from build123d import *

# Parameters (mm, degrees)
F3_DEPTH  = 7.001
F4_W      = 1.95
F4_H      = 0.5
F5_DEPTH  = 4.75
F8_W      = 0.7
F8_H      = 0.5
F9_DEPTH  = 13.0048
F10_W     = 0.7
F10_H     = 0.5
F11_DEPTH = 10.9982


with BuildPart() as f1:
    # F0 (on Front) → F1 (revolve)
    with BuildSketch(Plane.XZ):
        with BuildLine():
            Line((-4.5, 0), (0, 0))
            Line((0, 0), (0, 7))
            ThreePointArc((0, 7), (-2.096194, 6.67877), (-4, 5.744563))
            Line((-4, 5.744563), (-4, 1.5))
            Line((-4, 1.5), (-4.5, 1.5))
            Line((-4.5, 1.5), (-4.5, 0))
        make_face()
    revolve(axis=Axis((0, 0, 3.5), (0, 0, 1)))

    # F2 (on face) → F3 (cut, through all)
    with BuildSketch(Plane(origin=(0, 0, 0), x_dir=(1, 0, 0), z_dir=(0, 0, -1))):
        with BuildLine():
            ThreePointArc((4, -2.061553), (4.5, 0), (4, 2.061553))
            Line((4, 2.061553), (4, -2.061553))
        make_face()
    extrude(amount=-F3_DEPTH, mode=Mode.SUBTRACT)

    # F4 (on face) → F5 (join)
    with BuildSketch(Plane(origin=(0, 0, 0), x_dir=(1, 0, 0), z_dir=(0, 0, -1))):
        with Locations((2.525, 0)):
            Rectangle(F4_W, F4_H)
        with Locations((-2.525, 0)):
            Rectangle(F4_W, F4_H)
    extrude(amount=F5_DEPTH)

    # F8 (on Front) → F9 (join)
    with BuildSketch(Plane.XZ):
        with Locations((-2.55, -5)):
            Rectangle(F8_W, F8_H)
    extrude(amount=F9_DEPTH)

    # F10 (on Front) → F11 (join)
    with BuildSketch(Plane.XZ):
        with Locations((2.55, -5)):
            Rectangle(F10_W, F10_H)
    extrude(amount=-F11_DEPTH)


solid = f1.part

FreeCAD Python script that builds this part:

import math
import FreeCAD as App
import Part
import Sketcher

V = App.Vector
Q = App.Units.Quantity

doc = App.newDocument("Part")
body = doc.addObject("PartDesign::Body", "Body")

# Sketch on XZ plane
sketch1 = body.newObject("Sketcher::SketchObject", "Sketch")
sketch1.AttachmentSupport = (doc.getObject("XZ_Plane"), [""])
sketch1.MapMode = "FlatFace"
sketch1.addGeometry(Part.LineSegment(V(-4.5, 0, 0), V(0, 0, 0)), False)
sketch1.addGeometry(Part.LineSegment(V(0, 0, 0), V(0, 7, 0)), False)
sketch1.addGeometry(Part.ArcOfCircle(Part.Circle(V(0, 0, 0), V(0, 0, 1), 7), math.radians(90), math.radians(125)), False)
sketch1.addGeometry(Part.LineSegment(V(-4, 5.7, 0), V(-4, 1.5, 0)), False)
sketch1.addGeometry(Part.LineSegment(V(-4, 1.5, 0), V(-4.5, 1.5, 0)), False)
sketch1.addGeometry(Part.LineSegment(V(-4.5, 1.5, 0), V(-4.5, 0, 0)), False)
sketch1.addConstraint(Sketcher.Constraint("Coincident", 0, 2, 1, 1))
sketch1.addConstraint(Sketcher.Constraint("Coincident", 1, 2, 2, 1))
sketch1.addConstraint(Sketcher.Constraint("Coincident", 2, 2, 3, 1))
sketch1.addConstraint(Sketcher.Constraint("Coincident", 3, 2, 4, 1))
sketch1.addConstraint(Sketcher.Constraint("Coincident", 4, 2, 5, 1))
sketch1.addConstraint(Sketcher.Constraint("Coincident", 5, 2, 0, 1))
sketch1.addConstraint(Sketcher.Constraint("Horizontal", 0))
sketch1.addConstraint(Sketcher.Constraint("Vertical", 1))
sketch1.addConstraint(Sketcher.Constraint("Vertical", 3))
sketch1.addConstraint(Sketcher.Constraint("Horizontal", 4))
sketch1.addConstraint(Sketcher.Constraint("Vertical", 5))
sketch1.addConstraint(Sketcher.Constraint("Coincident", 2, 3, -1, 1))
sketch1.addConstraint(Sketcher.Constraint("Coincident", 0, 2, -1, 1))
sketch1.addConstraint(Sketcher.Constraint("DistanceY", 1, 1, 1, 2, Q("7 mm")))
sketch1.addConstraint(Sketcher.Constraint("DistanceX", 0, 1, 0, 2, Q("4.5 mm")))
sketch1.addConstraint(Sketcher.Constraint("DistanceX", 4, 2, 4, 1, Q("0.5 mm")))
sketch1.addConstraint(Sketcher.Constraint("DistanceY", 5, 2, 5, 1, Q("1.5 mm")))
revolution = body.newObject("PartDesign::Revolution", "Revolution")
revolution.Profile = sketch1
revolution.ReferenceAxis = (sketch1, ["V_Axis"])
revolution.Angle = 360

# Sketch on XY plane
sketch2 = body.newObject("Sketcher::SketchObject", "Sketch001")
sketch2.AttachmentSupport = (doc.getObject("XY_Plane"), [""])
sketch2.MapMode = "FlatFace"
sketch2.addGeometry(Part.ArcOfCircle(Part.Circle(V(0, 0, 0), V(0, 0, 1), 4.5), math.radians(-27), math.radians(27)), False)
sketch2.addGeometry(Part.LineSegment(V(4, -2.1, 0), V(4, 2.1, 0)), False)
sketch2.addConstraint(Sketcher.Constraint("Coincident", 0, 1, 1, 1))
sketch2.addConstraint(Sketcher.Constraint("Coincident", 1, 2, 0, 2))
sketch2.addConstraint(Sketcher.Constraint("Vertical", 1))
sketch2.addConstraint(Sketcher.Constraint("Coincident", 0, 3, -1, 1))
sketch2.addConstraint(Sketcher.Constraint("Radius", 0, Q("4.500001 mm")))
sketch2.addConstraint(Sketcher.Constraint("DistanceX", -1, 1, 0, 1, Q("4 mm")))
pocket1 = body.newObject("PartDesign::Pocket", "Pocket")
pocket1.Profile = sketch2
pocket1.Type = "ThroughAll"
pocket1.Reversed = True

# Sketch on XY plane
sketch3 = body.newObject("Sketcher::SketchObject", "Sketch002")
sketch3.AttachmentSupport = (doc.getObject("XY_Plane"), [""])
sketch3.MapMode = "FlatFace"
sketch3.addGeometry(Part.LineSegment(V(1.6, -0.2, 0), V(1.6, 0.2, 0)), False)
sketch3.addGeometry(Part.LineSegment(V(1.6, 0.2, 0), V(3.5, 0.2, 0)), False)
sketch3.addGeometry(Part.LineSegment(V(3.5, 0.2, 0), V(3.5, -0.2, 0)), False)
sketch3.addGeometry(Part.LineSegment(V(3.5, -0.2, 0), V(1.6, -0.2, 0)), False)
sketch3.addGeometry(Part.LineSegment(V(-3.5, -0.2, 0), V(-3.5, 0.2, 0)), False)
sketch3.addGeometry(Part.LineSegment(V(-3.5, 0.2, 0), V(-1.6, 0.2, 0)), False)
sketch3.addGeometry(Part.LineSegment(V(-1.6, 0.2, 0), V(-1.6, -0.2, 0)), False)
sketch3.addGeometry(Part.LineSegment(V(-1.6, -0.2, 0), V(-3.5, -0.2, 0)), False)
sketch3.addConstraint(Sketcher.Constraint("Coincident", 0, 2, 1, 1))
sketch3.addConstraint(Sketcher.Constraint("Coincident", 1, 2, 2, 1))
sketch3.addConstraint(Sketcher.Constraint("Coincident", 2, 2, 3, 1))
sketch3.addConstraint(Sketcher.Constraint("Coincident", 3, 2, 0, 1))
sketch3.addConstraint(Sketcher.Constraint("Coincident", 4, 2, 5, 1))
sketch3.addConstraint(Sketcher.Constraint("Coincident", 5, 2, 6, 1))
sketch3.addConstraint(Sketcher.Constraint("Coincident", 6, 2, 7, 1))
sketch3.addConstraint(Sketcher.Constraint("Coincident", 7, 2, 4, 1))
sketch3.addConstraint(Sketcher.Constraint("Vertical", 0))
sketch3.addConstraint(Sketcher.Constraint("Horizontal", 1))
sketch3.addConstraint(Sketcher.Constraint("Vertical", 2))
sketch3.addConstraint(Sketcher.Constraint("Horizontal", 3))
sketch3.addConstraint(Sketcher.Constraint("Vertical", 4))
sketch3.addConstraint(Sketcher.Constraint("Horizontal", 5))
sketch3.addConstraint(Sketcher.Constraint("Vertical", 6))
sketch3.addConstraint(Sketcher.Constraint("Horizontal", 7))
sketch3.addConstraint(Sketcher.Constraint("Symmetric", 2, 2, 4, 2, -1, 1))
sketch3.addConstraint(Sketcher.Constraint("Symmetric", 0, 2, 6, 2, -1, 1))
sketch3.addConstraint(Sketcher.Constraint("Horizontal", 1, 2, 4, 2))
sketch3.addConstraint(Sketcher.Constraint("DistanceY", 0, 1, 0, 2, Q("0.5 mm")))
sketch3.addConstraint(Sketcher.Constraint("DistanceX", 4, 2, 1, 2, Q("7 mm")))
sketch3.addConstraint(Sketcher.Constraint("DistanceX", 1, 1, 1, 2, Q("1.95 mm")))
pad1 = body.newObject("PartDesign::Pad", "Pad")
pad1.Profile = sketch3
pad1.Length = 4.75
pad1.Reversed = True

# Sketch on XZ plane
sketch4 = body.newObject("Sketcher::SketchObject", "Sketch003")
sketch4.AttachmentSupport = (doc.getObject("XZ_Plane"), [""])
sketch4.MapMode = "FlatFace"
sketch4.addGeometry(Part.LineSegment(V(-2.9, -4.8, 0), V(-2.9, -5.2, 0)), False)
sketch4.addGeometry(Part.LineSegment(V(-2.9, -5.2, 0), V(-2.2, -5.2, 0)), False)
sketch4.addGeometry(Part.LineSegment(V(-2.2, -5.2, 0), V(-2.2, -4.8, 0)), False)
sketch4.addGeometry(Part.LineSegment(V(-2.2, -4.8, 0), V(-2.9, -4.8, 0)), False)
sketch4.addConstraint(Sketcher.Constraint("Coincident", 0, 2, 1, 1))
sketch4.addConstraint(Sketcher.Constraint("Coincident", 1, 2, 2, 1))
sketch4.addConstraint(Sketcher.Constraint("Coincident", 2, 2, 3, 1))
sketch4.addConstraint(Sketcher.Constraint("Coincident", 3, 2, 0, 1))
sketch4.addConstraint(Sketcher.Constraint("Vertical", 0))
sketch4.addConstraint(Sketcher.Constraint("Horizontal", 1))
sketch4.addConstraint(Sketcher.Constraint("Vertical", 2))
sketch4.addConstraint(Sketcher.Constraint("Horizontal", 3))
sketch4.addConstraint(Sketcher.Constraint("DistanceX", 1, 1, 1, 2, Q("0.7 mm")))
sketch4.addConstraint(Sketcher.Constraint("DistanceY", 0, 2, 0, 1, Q("0.5 mm")))
sketch4.addConstraint(Sketcher.Constraint("DistanceX", 0, 2, -1, 1, Q("2.9 mm")))
sketch4.addConstraint(Sketcher.Constraint("DistanceY", 0, 2, -1, 1, Q("5.25 mm")))
pad2 = body.newObject("PartDesign::Pad", "Pad001")
pad2.Profile = sketch4
pad2.Length = 13.0048

# Sketch on XZ plane
sketch5 = body.newObject("Sketcher::SketchObject", "Sketch004")
sketch5.AttachmentSupport = (doc.getObject("XZ_Plane"), [""])
sketch5.MapMode = "FlatFace"
sketch5.addGeometry(Part.LineSegment(V(2.2, -4.8, 0), V(2.2, -5.2, 0)), False)
sketch5.addGeometry(Part.LineSegment(V(2.2, -5.2, 0), V(2.9, -5.2, 0)), False)
sketch5.addGeometry(Part.LineSegment(V(2.9, -5.2, 0), V(2.9, -4.8, 0)), False)
sketch5.addGeometry(Part.LineSegment(V(2.9, -4.8, 0), V(2.2, -4.8, 0)), False)
sketch5.addConstraint(Sketcher.Constraint("Coincident", 0, 2, 1, 1))
sketch5.addConstraint(Sketcher.Constraint("Coincident", 1, 2, 2, 1))
sketch5.addConstraint(Sketcher.Constraint("Coincident", 2, 2, 3, 1))
sketch5.addConstraint(Sketcher.Constraint("Coincident", 3, 2, 0, 1))
sketch5.addConstraint(Sketcher.Constraint("Vertical", 0))
sketch5.addConstraint(Sketcher.Constraint("Horizontal", 1))
sketch5.addConstraint(Sketcher.Constraint("Vertical", 2))
sketch5.addConstraint(Sketcher.Constraint("Horizontal", 3))
sketch5.addConstraint(Sketcher.Constraint("DistanceX", 1, 1, 1, 2, Q("0.7 mm")))
sketch5.addConstraint(Sketcher.Constraint("DistanceY", 0, 2, 0, 1, Q("0.5 mm")))
sketch5.addConstraint(Sketcher.Constraint("DistanceX", -1, 1, 0, 2, Q("2.2 mm")))
sketch5.addConstraint(Sketcher.Constraint("DistanceY", 0, 2, -1, 1, Q("5.25 mm")))
pad3 = body.newObject("PartDesign::Pad", "Pad002")
pad3.Profile = sketch5
pad3.Length = 10.9982
pad3.Reversed = True

doc.recompute()
